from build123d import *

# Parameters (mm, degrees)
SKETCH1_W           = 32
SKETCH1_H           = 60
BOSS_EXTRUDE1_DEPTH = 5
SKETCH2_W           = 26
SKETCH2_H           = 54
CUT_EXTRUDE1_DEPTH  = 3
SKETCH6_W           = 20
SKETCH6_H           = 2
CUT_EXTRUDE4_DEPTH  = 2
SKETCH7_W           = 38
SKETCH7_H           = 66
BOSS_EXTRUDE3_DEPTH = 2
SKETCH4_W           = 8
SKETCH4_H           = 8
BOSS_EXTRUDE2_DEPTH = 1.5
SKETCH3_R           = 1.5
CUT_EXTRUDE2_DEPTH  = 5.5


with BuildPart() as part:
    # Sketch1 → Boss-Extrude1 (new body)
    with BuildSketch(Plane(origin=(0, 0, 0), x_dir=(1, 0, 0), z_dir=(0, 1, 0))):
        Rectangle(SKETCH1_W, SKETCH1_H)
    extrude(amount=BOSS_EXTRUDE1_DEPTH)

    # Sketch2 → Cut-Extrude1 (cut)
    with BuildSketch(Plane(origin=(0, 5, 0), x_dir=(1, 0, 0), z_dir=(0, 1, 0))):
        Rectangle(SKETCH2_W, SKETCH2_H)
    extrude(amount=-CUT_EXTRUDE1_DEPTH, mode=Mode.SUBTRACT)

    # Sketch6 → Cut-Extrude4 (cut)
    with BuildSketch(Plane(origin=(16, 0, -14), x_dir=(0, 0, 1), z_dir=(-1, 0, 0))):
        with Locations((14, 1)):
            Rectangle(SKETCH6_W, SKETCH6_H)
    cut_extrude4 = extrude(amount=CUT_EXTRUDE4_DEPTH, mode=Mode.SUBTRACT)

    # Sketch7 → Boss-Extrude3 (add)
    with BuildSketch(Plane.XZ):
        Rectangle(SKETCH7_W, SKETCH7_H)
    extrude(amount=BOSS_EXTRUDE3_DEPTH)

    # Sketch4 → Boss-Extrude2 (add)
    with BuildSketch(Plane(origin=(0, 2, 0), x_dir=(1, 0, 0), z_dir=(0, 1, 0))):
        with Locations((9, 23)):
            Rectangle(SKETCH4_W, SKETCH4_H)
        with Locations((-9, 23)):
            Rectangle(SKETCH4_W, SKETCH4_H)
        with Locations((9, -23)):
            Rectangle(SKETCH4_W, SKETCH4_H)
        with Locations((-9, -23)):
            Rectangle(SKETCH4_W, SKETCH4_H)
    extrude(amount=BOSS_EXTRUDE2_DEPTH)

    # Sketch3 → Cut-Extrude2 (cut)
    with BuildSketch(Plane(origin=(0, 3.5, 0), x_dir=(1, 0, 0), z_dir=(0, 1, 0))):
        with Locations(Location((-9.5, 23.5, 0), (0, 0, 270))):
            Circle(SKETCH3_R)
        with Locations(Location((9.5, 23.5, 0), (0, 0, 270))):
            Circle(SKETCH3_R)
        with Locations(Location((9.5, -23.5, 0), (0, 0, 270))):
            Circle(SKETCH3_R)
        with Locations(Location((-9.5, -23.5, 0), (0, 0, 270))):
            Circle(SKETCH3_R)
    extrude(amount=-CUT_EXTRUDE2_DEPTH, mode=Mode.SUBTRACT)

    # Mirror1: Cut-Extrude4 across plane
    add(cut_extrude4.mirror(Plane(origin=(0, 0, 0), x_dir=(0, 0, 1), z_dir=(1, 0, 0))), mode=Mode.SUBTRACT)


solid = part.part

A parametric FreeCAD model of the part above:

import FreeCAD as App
import Part
import Sketcher
from FreeCAD import Vector


def add_polygon(sketch, points):
    """Adds a closed chain of lines whose ends are joined by coincident constraints."""
    first, n = sketch.GeometryCount, len(points)
    for a, b in zip(points, points[1:] + points[:1]):
        sketch.addGeometry(Part.LineSegment(App.Vector(*a, 0), App.Vector(*b, 0)), False)
    for i in range(n):
        sketch.addConstraint(Sketcher.Constraint("Coincident", first + i, 2, first + (i + 1) % n, 1))

doc = App.newDocument("Part")
body = doc.addObject("PartDesign::Body", "Body")

sketch1 = body.newObject("Sketcher::SketchObject", "Sketch")
sketch1.AttachmentSupport = (doc.getObject("XZ_Plane"), [""])
sketch1.MapMode = "FlatFace"
add_polygon(sketch1, [(-16, -30), (-16, 30), (16, 30), (16, -30)])
sketch1.addConstraint([
    Sketcher.Constraint("Vertical", 0),
    Sketcher.Constraint("Horizontal", 1),
    Sketcher.Constraint("Vertical", 2),
    Sketcher.Constraint("Horizontal", 3),
    Sketcher.Constraint("Symmetric", 0, 2, 2, 2, -1, 1),
    Sketcher.Constraint("DistanceX", 1, 1, 1, 2, 32.0),
    Sketcher.Constraint("DistanceY", 0, 1, 0, 2, 60.0),
])
pad1 = body.newObject("PartDesign::Pad", "Pad")
pad1.Profile = sketch1
pad1.Length = 5
pad1.Reversed = True

sketch2 = body.newObject("Sketcher::SketchObject", "Sketch001")
sketch2.AttachmentSupport = (doc.getObject("XZ_Plane"), [""])
sketch2.MapMode = "FlatFace"
sketch2.AttachmentOffset = App.Placement(Vector(0, 0, -5), App.Rotation())
add_polygon(sketch2, [(-13, -27), (-13, 27), (13, 27), (13, -27)])
sketch2.addConstraint([
    Sketcher.Constraint("Vertical", 0),
    Sketcher.Constraint("Horizontal", 1),
    Sketcher.Constraint("Vertical", 2),
    Sketcher.Constraint("Horizontal", 3),
    Sketcher.Constraint("Symmetric", 0, 2, 2, 2, -1, 1),
    Sketcher.Constraint("DistanceX", 1, 1, 1, 2, 26.0),
    Sketcher.Constraint("DistanceY", 0, 1, 0, 2, 54.0),
])
pocket1 = body.newObject("PartDesign::Pocket", "Pocket")
pocket1.Profile = sketch2
pocket1.Length = 3
pocket1.Reversed = True

sketch3 = body.newObject("Sketcher::SketchObject", "Sketch002")
sketch3.AttachmentSupport = (doc.getObject("YZ_Plane"), [""])
sketch3.MapMode = "FlatFace"
sketch3.AttachmentOffset = App.Placement(Vector(0, 0, 16), App.Rotation())
add_polygon(sketch3, [(2, -10), (0, -10), (0, 10), (2, 10)])
sketch3.addConstraint([
    Sketcher.Constraint("Horizontal", 0),
    Sketcher.Constraint("Vertical", 1),
    Sketcher.Constraint("Horizontal", 2),
    Sketcher.Constraint("Vertical", 3),
    Sketcher.Constraint("Symmetric", 0, 2, 1, 2, -1, 1),
    Sketcher.Constraint("DistanceX", 0, 2, 0, 1, 2.0),
    Sketcher.Constraint("DistanceY", 1, 1, 1, 2, 20.0),
])
pocket2 = body.newObject("PartDesign::Pocket", "Pocket001")
pocket2.Profile = sketch3
pocket2.Length = 2

sketch4 = body.newObject("Sketcher::SketchObject", "Sketch003")
sketch4.AttachmentSupport = (doc.getObject("XZ_Plane"), [""])
sketch4.MapMode = "FlatFace"
add_polygon(sketch4, [(-19, 33), (-19, -33), (19, -33), (19, 33)])
sketch4.addConstraint([
    Sketcher.Constraint("Vertical", 0),
    Sketcher.Constraint("Horizontal", 1),
    Sketcher.Constraint("Vertical", 2),
    Sketcher.Constraint("Horizontal", 3),
    Sketcher.Constraint("Symmetric", 0, 2, 2, 2, -1, 1),
    Sketcher.Constraint("DistanceX", 1, 1, 1, 2, 38.0),
    Sketcher.Constraint("DistanceY", 0, 2, 0, 1, 66.0),
])
pad2 = body.newObject("PartDesign::Pad", "Pad001")
pad2.Profile = sketch4
pad2.Length = 2

sketch5 = body.newObject("Sketcher::SketchObject", "Sketch004")
sketch5.AttachmentSupport = (doc.getObject("XZ_Plane"), [""])
sketch5.MapMode = "FlatFace"
sketch5.AttachmentOffset = App.Placement(Vector(0, 0, -2), App.Rotation())
add_polygon(sketch5, [(5, -27), (5, -19), (13, -19), (13, -27)])
add_polygon(sketch5, [(-13, -27), (-13, -19), (-5, -19), (-5, -27)])
add_polygon(sketch5, [(5, 19), (5, 27), (13, 27), (13, 19)])
add_polygon(sketch5, [(-13, 19), (-13, 27), (-5, 27), (-5, 19)])
sketch5.addConstraint([
    Sketcher.Constraint("Vertical", 0),
    Sketcher.Constraint("Horizontal", 1),
    Sketcher.Constraint("Vertical", 2),
    Sketcher.Constraint("Horizontal", 3),
    Sketcher.Constraint("Vertical", 4),
    Sketcher.Constraint("Horizontal", 5),
    Sketcher.Constraint("Vertical", 6),
    Sketcher.Constraint("Horizontal", 7),
    Sketcher.Constraint("Vertical", 8),
    Sketcher.Constraint("Horizontal", 9),
    Sketcher.Constraint("Vertical", 10),
    Sketcher.Constraint("Horizontal", 11),
    Sketcher.Constraint("Vertical", 12),
    Sketcher.Constraint("Horizontal", 13),
    Sketcher.Constraint("Vertical", 14),
    Sketcher.Constraint("Horizontal", 15),
    Sketcher.Constraint("Symmetric", 6, 2, 8, 2, -1, 1),
    Sketcher.Constraint("Symmetric", 4, 2, 10, 2, -1, 1),
    Sketcher.Constraint("Symmetric", 2, 2, 12, 2, -1, 1),
    Sketcher.Constraint("Symmetric", 0, 2, 14, 2, -1, 1),
    Sketcher.Constraint("Symmetric", 1, 2, 4, 2, -2),
    Sketcher.Constraint("Symmetric", 3, 2, 6, 2, -2),
    Sketcher.Constraint("Equal", 15, 0),
    Sketcher.Constraint("DistanceX", 1, 1, 1, 2, 8.0),
    Sketcher.Constraint("DistanceX", -1, 1, 0, 2, 5.0),
    Sketcher.Constraint("DistanceY", 0, 2, -1, 1, 19.0),
])
pad3 = body.newObject("PartDesign::Pad", "Pad002")
pad3.Profile = sketch5
pad3.Length = 1.5
pad3.Reversed = True

sketch6 = body.newObject("Sketcher::SketchObject", "Sketch005")
sketch6.AttachmentSupport = (doc.getObject("XZ_Plane"), [""])
sketch6.MapMode = "FlatFace"
sketch6.AttachmentOffset = App.Placement(Vector(0, 0, -3.5), App.Rotation())
sketch6.addGeometry([
    Part.Circle(Vector(-9.5, -23.5, 0), Vector(0, 0, 1), 1.5),
    Part.Circle(Vector(9.5, -23.5, 0), Vector(0, 0, 1), 1.5),
    Part.Circle(Vector(9.5, 23.5, 0), Vector(0, 0, 1), 1.5),
    Part.Circle(Vector(-9.5, 23.5, 0), Vector(0, 0, 1), 1.5),
], False)
sketch6.addConstraint([
    Sketcher.Constraint("Equal", 0, 1),
    Sketcher.Constraint("Equal", 1, 2),
    Sketcher.Constraint("Equal", 2, 3),
    Sketcher.Constraint("Symmetric", 0, 3, 2, 3, -1, 1),
    Sketcher.Constraint("Symmetric", 1, 3, 3, 3, -1, 1),
    Sketcher.Constraint("Symmetric", 0, 3, 1, 3, -2),
    Sketcher.Constraint("Diameter", 0, 3.0),
    Sketcher.Constraint("DistanceX", 0, 3, 1, 3, 19.0),
    Sketcher.Constraint("DistanceY", 1, 3, 2, 3, 47.0),
])
pocket3 = body.newObject("PartDesign::Pocket", "Pocket002")
pocket3.Profile = sketch6
pocket3.Length = 5.5
pocket3.Reversed = True
doc.recompute()

mirrored = body.newObject("PartDesign::Mirrored", "Mirrored")
mirrored.Originals = [pocket2]
mirrored.MirrorPlane = (doc.getObject("YZ_Plane"), [""])
body.Tip = mirrored

doc.recompute()
